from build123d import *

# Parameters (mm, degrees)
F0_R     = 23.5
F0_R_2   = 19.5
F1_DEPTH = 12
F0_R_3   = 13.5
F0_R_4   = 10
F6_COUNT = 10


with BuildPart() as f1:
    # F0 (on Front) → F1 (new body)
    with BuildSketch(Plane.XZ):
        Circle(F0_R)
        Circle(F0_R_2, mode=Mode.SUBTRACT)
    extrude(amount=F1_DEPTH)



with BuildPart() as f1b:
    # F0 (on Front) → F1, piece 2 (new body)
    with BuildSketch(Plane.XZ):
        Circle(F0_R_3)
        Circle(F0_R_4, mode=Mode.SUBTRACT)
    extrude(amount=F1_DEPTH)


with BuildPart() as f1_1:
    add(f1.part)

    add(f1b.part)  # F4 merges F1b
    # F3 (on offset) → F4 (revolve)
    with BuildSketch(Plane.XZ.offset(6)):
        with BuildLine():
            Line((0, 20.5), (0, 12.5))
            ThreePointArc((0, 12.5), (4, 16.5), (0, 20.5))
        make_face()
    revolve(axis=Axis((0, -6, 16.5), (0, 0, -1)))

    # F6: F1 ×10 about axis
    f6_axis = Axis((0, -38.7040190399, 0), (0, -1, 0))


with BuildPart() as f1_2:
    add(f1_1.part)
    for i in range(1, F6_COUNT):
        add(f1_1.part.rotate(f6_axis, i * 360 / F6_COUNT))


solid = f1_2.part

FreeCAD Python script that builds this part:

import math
import FreeCAD as App
import Part
import Sketcher
from FreeCAD import Vector

doc = App.newDocument("Part")
body = doc.addObject("PartDesign::Body", "Body")

sketch1 = body.newObject("Sketcher::SketchObject", "Sketch")
sketch1.AttachmentSupport = (doc.getObject("XZ_Plane"), [""])
sketch1.MapMode = "FlatFace"
sketch1.addGeometry([
    Part.Circle(Vector(0, 0, 0), Vector(0, 0, 1), 23.5),
    Part.Circle(Vector(0, 0, 0), Vector(0, 0, 1), 19.5),
], False)
sketch1.addConstraint([
    Sketcher.Constraint("Coincident", 0, 3, -1, 1),
    Sketcher.Constraint("Coincident", 1, 3, -1, 1),
    Sketcher.Constraint("Diameter", 0, 47.0),
    Sketcher.Constraint("Diameter", 1, 39.0),
])
pad1 = body.newObject("PartDesign::Pad", "Pad")
pad1.Profile = sketch1
pad1.Length = 12
body2 = doc.addObject("PartDesign::Body", "Body001")

sketch2 = body2.newObject("Sketcher::SketchObject", "Sketch001")
sketch2.AttachmentSupport = (doc.getObject("XZ_Plane001"), [""])
sketch2.MapMode = "FlatFace"
sketch2.addGeometry([
    Part.Circle(Vector(0, 0, 0), Vector(0, 0, 1), 13.5),
    Part.Circle(Vector(0, 0, 0), Vector(0, 0, 1), 10),
], False)
sketch2.addConstraint([
    Sketcher.Constraint("Coincident", 0, 3, -1, 1),
    Sketcher.Constraint("Coincident", 1, 3, -1, 1),
    Sketcher.Constraint("Diameter", 0, 27.0),
    Sketcher.Constraint("Diameter", 1, 20.0),
])
pad2 = body2.newObject("PartDesign::Pad", "Pad001")
pad2.Profile = sketch2
pad2.Length = 12
body.AllowCompound = True
doc.recompute()

boolean = body.newObject("PartDesign::Boolean", "Boolean")
boolean.Type = "Fuse"
boolean.addObjects([body2])

sketch3 = body.newObject("Sketcher::SketchObject", "Sketch002")
sketch3.AttachmentSupport = (doc.getObject("XZ_Plane"), [""])
sketch3.MapMode = "FlatFace"
sketch3.AttachmentOffset = App.Placement(Vector(0, 0, 6), App.Rotation())
sketch3.addGeometry([
    Part.LineSegment(Vector(0, 20.5, 0), Vector(0, 12.5, 0)),
    Part.ArcOfCircle(Part.Circle(Vector(0, 16.5, 0), Vector(0, 0, 1), 4), math.radians(-90), math.radians(90)),
], False)
sketch3.addConstraint([
    Sketcher.Constraint("Coincident", 0, 1, 1, 2),
    Sketcher.Constraint("Coincident", 1, 1, 0, 2),
    Sketcher.Constraint("Vertical", 0),
    Sketcher.Constraint("PointOnObject", 1, 3, -2),
    Sketcher.Constraint("PointOnObject", 0, 1, -2),
    Sketcher.Constraint("Radius", 1, 4.0),
    Sketcher.Constraint("DistanceY", -1, 1, 1, 3, 16.5),
])
revolution = body.newObject("PartDesign::Revolution", "Revolution")
revolution.Profile = sketch3
revolution.ReferenceAxis = (sketch3, ["V_Axis"])
revolution.Angle = 360
body3 = doc.addObject("PartDesign::Body", "Body002")
doc.recompute()

body3.BaseFeature = body
doc.recompute()

body4 = doc.addObject("PartDesign::Body", "Body003")
body4.BaseFeature = body
body4.Placement = App.Placement(Vector(0, 0, 0), App.Rotation(Vector(0, -1, 0), 36))
boolean2 = body3.newObject("PartDesign::Boolean", "Boolean001")
boolean2.Type = "Fuse"
boolean2.addObjects([body4])
doc.recompute()

body5 = doc.addObject("PartDesign::Body", "Body004")
body5.BaseFeature = body
body5.Placement = App.Placement(Vector(0, 0, 0), App.Rotation(Vector(0, -1, 0), 72))
boolean3 = body3.newObject("PartDesign::Boolean", "Boolean002")
boolean3.Type = "Fuse"
boolean3.addObjects([body5])
doc.recompute()

body6 = doc.addObject("PartDesign::Body", "Body005")
body6.BaseFeature = body
body6.Placement = App.Placement(Vector(0, 0, 0), App.Rotation(Vector(0, -1, 0), 108))
boolean4 = body3.newObject("PartDesign::Boolean", "Boolean003")
boolean4.Type = "Fuse"
boolean4.addObjects([body6])
doc.recompute()

body7 = doc.addObject("PartDesign::Body", "Body006")
body7.BaseFeature = body
body7.Placement = App.Placement(Vector(0, 0, 0), App.Rotation(Vector(0, -1, 0), 144))
boolean5 = body3.newObject("PartDesign::Boolean", "Boolean004")
boolean5.Type = "Fuse"
boolean5.addObjects([body7])
doc.recompute()

body8 = doc.addObject("PartDesign::Body", "Body007")
body8.BaseFeature = body
body8.Placement = App.Placement(Vector(0, 0, 0), App.Rotation(Vector(0, -1, 0), 180))
boolean6 = body3.newObject("PartDesign::Boolean", "Boolean005")
boolean6.Type = "Fuse"
boolean6.addObjects([body8])
doc.recompute()

body9 = doc.addObject("PartDesign::Body", "Body008")
body9.BaseFeature = body
body9.Placement = App.Placement(Vector(0, 0, 0), App.Rotation(Vector(0, -1, 0), 216))
boolean7 = body3.newObject("PartDesign::Boolean", "Boolean006")
boolean7.Type = "Fuse"
boolean7.addObjects([body9])
doc.recompute()

body10 = doc.addObject("PartDesign::Body", "Body009")
body10.BaseFeature = body
body10.Placement = App.Placement(Vector(0, 0, 0), App.Rotation(Vector(0, -1, 0), 252))
boolean8 = body3.newObject("PartDesign::Boolean", "Boolean007")
boolean8.Type = "Fuse"
boolean8.addObjects([body10])
doc.recompute()

body11 = doc.addObject("PartDesign::Body", "Body010")
body11.BaseFeature = body
body11.Placement = App.Placement(Vector(0, 0, 0), App.Rotation(Vector(0, -1, 0), 288))
boolean9 = body3.newObject("PartDesign::Boolean", "Boolean008")
boolean9.Type = "Fuse"
boolean9.addObjects([body11])
doc.recompute()

body.Placement = App.Placement(Vector(0, 0, 0), App.Rotation(Vector(0, -1, 0), 324))
boolean10 = body3.newObject("PartDesign::Boolean", "Boolean009")
boolean10.Type = "Fuse"
boolean10.addObjects([body])

doc.recompute()
